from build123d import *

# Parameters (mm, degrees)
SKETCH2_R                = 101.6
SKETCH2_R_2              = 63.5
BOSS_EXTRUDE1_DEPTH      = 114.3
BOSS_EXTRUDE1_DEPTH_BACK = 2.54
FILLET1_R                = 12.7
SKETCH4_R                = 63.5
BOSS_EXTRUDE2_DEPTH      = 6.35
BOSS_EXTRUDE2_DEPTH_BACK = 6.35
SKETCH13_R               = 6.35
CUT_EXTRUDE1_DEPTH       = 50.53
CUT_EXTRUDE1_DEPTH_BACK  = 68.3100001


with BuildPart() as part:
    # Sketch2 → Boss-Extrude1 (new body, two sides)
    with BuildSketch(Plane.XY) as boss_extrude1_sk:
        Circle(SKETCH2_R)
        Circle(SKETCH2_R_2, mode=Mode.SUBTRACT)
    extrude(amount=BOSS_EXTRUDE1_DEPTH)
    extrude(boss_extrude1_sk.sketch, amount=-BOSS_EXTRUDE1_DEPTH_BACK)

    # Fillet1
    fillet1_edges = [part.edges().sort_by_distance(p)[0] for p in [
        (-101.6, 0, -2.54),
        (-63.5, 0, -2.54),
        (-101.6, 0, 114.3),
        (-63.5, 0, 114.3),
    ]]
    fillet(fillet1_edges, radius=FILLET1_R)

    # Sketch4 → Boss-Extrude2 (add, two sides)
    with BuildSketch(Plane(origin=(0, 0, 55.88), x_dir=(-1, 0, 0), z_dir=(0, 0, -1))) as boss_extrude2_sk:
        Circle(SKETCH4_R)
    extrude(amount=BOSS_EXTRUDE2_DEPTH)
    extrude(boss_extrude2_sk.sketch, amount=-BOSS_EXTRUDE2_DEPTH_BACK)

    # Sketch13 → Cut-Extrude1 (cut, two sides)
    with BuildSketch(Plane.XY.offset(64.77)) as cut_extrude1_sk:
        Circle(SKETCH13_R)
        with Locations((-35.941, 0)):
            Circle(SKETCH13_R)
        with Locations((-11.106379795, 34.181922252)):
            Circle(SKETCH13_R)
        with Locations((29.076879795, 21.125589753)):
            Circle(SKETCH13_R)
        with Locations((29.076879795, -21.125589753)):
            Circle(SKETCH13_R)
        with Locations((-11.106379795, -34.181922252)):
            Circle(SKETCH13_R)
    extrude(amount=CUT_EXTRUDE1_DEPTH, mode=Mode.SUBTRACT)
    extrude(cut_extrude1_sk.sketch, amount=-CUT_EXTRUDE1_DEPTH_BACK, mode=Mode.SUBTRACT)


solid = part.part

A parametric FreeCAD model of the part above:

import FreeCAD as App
import Part
import Sketcher
from FreeCAD import Vector
Q = App.Units.Quantity


def edges_at(feature, points):
    """Names of the edges that pass closest to the given points."""
    edges = feature.Shape.Edges
    near = lambda p: min(range(len(edges)), key=lambda i: edges[i].distToShape(Part.Vertex(*p))[0])
    return sorted({f"Edge{near(p) + 1}" for p in points})

doc = App.newDocument("Part")
body = doc.addObject("PartDesign::Body", "Body")

sketch1 = doc.addObject("Sketcher::SketchObject", "Sketch")
body.addObject(sketch1)
sketch1.AttachmentSupport = (doc.XY_Plane, [""])
sketch1.MapMode = "FlatFace"
sketch1.addGeometry(Part.Circle(Vector(0, 0, 0), Vector(0, 0, 1), 101.6), False)
sketch1.addGeometry(Part.Circle(Vector(0, 0, 0), Vector(0, 0, 1), 63.5), False)
sketch1.addConstraint(Sketcher.Constraint("Coincident", 0, 3, -1, 1))
sketch1.addConstraint(Sketcher.Constraint("Coincident", 1, 3, -1, 1))
sketch1.addConstraint(Sketcher.Constraint("Diameter", 0, Q("8 in")))
sketch1.addConstraint(Sketcher.Constraint("Diameter", 1, Q("5 in")))
pad1 = doc.addObject("PartDesign::Pad", "Pad")
body.addObject(pad1)
pad1.Profile = sketch1
pad1.Type = "TwoLengths"
pad1.Length = Q("4.5 in")
pad1.Length2 = Q("0.1 in")
doc.recompute()

fillet = doc.addObject("PartDesign::Fillet", "Fillet")
body.addObject(fillet)
fillet.Base = (pad1, edges_at(pad1, [
    (-101.6, 0, -2.54),
    (-63.5, 0, -2.54),
    (-101.6, 0, 114.3),
    (-63.5, 0, 114.3),
]))
fillet.Radius = Q("0.5 in")

sketch2 = doc.addObject("Sketcher::SketchObject", "Sketch001")
body.addObject(sketch2)
sketch2.AttachmentSupport = (doc.XY_Plane, [""])
sketch2.MapMode = "FlatFace"
sketch2.AttachmentOffset = App.Placement(Vector(0, 0, 2.2 * 25.4), App.Rotation())
sketch2.addGeometry(Part.Circle(Vector(0, 0, 0), Vector(0, 0, 1), 63.5), False)
sketch2.addConstraint(Sketcher.Constraint("Coincident", 0, 3, -1, 1))
sketch2.addConstraint(Sketcher.Constraint("Diameter", 0, Q("5 in")))
pad2 = doc.addObject("PartDesign::Pad", "Pad001")
body.addObject(pad2)
pad2.Profile = sketch2
pad2.Type = "TwoLengths"
pad2.Length = Q("0.25 in")
pad2.Length2 = Q("0.25 in")
pad2.Reversed = True

sketch3 = doc.addObject("Sketcher::SketchObject", "Sketch002")
body.addObject(sketch3)
sketch3.AttachmentSupport = (doc.XY_Plane, [""])
sketch3.MapMode = "FlatFace"
sketch3.AttachmentOffset = App.Placement(Vector(0, 0, 2.55 * 25.4), App.Rotation())
sketch3.addGeometry(Part.Circle(Vector(0, 0, 0), Vector(0, 0, 1), 6.35), False)
sketch3.addGeometry(Part.Circle(Vector(-35.941, 0, 0), Vector(0, 0, 1), 6.35), False)
sketch3.addGeometry(Part.Circle(Vector(-11.10638, 34.181922, 0), Vector(0, 0, 1), 6.35), False)
sketch3.addGeometry(Part.Circle(Vector(29.07688, 21.12559, 0), Vector(0, 0, 1), 6.35), False)
sketch3.addGeometry(Part.Circle(Vector(29.07688, -21.12559, 0), Vector(0, 0, 1), 6.35), False)
sketch3.addGeometry(Part.Circle(Vector(-11.10638, -34.181922, 0), Vector(0, 0, 1), 6.35), False)
sketch3.addConstraint(Sketcher.Constraint("Coincident", 0, 3, -1, 1))
sketch3.addConstraint(Sketcher.Constraint("Equal", 0, 1))
sketch3.addConstraint(Sketcher.Constraint("Equal", 1, 2))
sketch3.addConstraint(Sketcher.Constraint("Equal", 2, 3))
sketch3.addConstraint(Sketcher.Constraint("Equal", 3, 4))
sketch3.addConstraint(Sketcher.Constraint("Equal", 4, 5))
sketch3.addConstraint(Sketcher.Constraint("Symmetric", 3, 3, 4, 3, -1))
sketch3.addConstraint(Sketcher.Constraint("Symmetric", 2, 3, 5, 3, -1))
sketch3.addConstraint(Sketcher.Constraint("PointOnObject", 1, 3, -1))
sketch3.addConstraint(Sketcher.Constraint("Diameter", 0, Q("0.5 in")))
sketch3.addConstraint(Sketcher.Constraint("DistanceX", 1, 3, -1, 1, Q("1.415 in")))
sketch3.addConstraint(Sketcher.Constraint("DistanceX", 2, 3, -1, 1, 11.10638))
sketch3.addConstraint(Sketcher.Constraint("DistanceX", -1, 1, 3, 3, 29.07688))
sketch3.addConstraint(Sketcher.Constraint("DistanceY", -1, 1, 3, 3, 21.12559))
sketch3.addConstraint(Sketcher.Constraint("DistanceY", -1, 1, 2, 3, 34.181922))
pocket1 = doc.addObject("PartDesign::Pocket", "Pocket")
body.addObject(pocket1)
pocket1.Profile = sketch3
pocket1.Type = "ThroughAll"
pocket1.Midplane = True

doc.recompute()
